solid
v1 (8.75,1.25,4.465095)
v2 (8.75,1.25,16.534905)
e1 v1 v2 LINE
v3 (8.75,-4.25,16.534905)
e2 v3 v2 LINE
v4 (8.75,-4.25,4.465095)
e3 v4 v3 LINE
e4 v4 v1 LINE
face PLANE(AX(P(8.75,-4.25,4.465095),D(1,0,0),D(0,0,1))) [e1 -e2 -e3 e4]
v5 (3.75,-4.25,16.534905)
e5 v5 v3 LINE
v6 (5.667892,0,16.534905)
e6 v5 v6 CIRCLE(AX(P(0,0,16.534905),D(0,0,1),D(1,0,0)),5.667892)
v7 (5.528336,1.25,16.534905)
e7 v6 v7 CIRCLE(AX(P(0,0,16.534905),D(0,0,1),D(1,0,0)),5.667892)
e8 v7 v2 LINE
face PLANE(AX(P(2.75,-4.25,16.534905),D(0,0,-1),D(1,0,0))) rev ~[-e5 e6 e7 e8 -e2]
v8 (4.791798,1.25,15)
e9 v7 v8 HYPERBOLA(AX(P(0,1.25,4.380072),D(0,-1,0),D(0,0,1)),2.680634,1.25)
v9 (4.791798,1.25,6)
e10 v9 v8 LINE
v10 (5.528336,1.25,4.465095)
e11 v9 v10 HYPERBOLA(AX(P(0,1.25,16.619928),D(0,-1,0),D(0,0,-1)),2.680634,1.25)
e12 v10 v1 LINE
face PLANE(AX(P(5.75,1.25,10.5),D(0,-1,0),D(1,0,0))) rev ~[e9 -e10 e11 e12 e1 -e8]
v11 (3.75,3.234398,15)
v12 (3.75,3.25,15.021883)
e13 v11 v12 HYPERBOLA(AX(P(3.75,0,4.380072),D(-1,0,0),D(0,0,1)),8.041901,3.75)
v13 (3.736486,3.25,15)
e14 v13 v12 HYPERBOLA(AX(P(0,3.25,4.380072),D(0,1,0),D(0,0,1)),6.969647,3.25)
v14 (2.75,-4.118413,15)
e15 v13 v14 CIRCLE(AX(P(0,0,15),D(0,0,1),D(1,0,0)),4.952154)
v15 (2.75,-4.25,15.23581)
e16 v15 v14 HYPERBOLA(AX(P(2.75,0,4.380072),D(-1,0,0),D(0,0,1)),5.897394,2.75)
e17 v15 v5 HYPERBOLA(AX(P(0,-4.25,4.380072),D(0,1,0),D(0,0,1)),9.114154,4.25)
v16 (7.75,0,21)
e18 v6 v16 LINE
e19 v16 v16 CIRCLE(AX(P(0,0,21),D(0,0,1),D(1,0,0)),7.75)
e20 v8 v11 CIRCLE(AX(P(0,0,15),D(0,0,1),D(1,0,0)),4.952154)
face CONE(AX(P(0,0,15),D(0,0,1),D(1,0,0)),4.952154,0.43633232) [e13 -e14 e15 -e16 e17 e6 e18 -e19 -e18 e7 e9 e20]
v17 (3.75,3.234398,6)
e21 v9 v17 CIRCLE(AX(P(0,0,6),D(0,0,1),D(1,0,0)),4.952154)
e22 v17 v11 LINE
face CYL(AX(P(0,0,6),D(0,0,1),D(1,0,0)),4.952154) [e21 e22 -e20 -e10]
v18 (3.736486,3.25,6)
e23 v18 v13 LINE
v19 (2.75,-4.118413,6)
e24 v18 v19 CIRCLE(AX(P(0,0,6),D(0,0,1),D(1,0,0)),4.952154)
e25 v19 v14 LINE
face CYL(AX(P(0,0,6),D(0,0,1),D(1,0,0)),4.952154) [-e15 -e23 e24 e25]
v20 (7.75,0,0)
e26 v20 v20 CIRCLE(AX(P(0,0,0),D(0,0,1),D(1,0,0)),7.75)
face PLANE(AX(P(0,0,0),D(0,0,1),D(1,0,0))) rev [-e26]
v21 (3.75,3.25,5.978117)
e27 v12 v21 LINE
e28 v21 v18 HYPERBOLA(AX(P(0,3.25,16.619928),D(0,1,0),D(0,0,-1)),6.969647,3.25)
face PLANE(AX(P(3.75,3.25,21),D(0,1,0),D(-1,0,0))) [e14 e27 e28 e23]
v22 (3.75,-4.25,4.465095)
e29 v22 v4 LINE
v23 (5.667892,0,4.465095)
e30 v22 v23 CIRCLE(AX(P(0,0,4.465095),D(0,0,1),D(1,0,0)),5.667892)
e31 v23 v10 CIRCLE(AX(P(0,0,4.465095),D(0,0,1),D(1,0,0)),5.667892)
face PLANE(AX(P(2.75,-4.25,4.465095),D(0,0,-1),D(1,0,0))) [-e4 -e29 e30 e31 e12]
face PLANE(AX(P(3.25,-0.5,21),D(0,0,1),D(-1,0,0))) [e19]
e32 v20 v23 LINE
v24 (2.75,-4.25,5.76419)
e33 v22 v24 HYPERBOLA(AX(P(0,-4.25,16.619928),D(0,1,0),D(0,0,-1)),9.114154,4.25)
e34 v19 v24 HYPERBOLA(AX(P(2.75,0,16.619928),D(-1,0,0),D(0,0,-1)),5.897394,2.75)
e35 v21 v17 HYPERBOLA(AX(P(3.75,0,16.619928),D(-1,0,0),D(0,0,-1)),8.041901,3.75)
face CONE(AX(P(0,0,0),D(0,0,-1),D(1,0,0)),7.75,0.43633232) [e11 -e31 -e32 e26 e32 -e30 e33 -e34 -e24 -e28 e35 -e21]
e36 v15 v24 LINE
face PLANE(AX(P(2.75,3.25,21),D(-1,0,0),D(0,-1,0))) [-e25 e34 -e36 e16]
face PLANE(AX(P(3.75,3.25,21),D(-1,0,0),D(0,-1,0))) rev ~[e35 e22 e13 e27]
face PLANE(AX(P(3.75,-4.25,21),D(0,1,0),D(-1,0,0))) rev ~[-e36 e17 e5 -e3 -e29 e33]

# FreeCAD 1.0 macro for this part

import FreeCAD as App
import Part
import Sketcher
from FreeCAD import Vector
Q = App.Units.Quantity

doc = App.newDocument("Part")
body = doc.addObject("PartDesign::Body", "Body")

# Sketch on XZ plane
sketch1 = body.newObject("Sketcher::SketchObject", "Sketch")
sketch1.AttachmentSupport = (doc.getObject("XZ_Plane"), [""])
sketch1.MapMode = "FlatFace"
sketch1.addGeometry([
    Part.LineSegment(Vector(0, 0, 0), Vector(7.75, 0, 0)),  # 0
    Part.LineSegment(Vector(7.75, 0, 0), Vector(4.952154, 6, 0)),  # 1
    Part.LineSegment(Vector(4.952154, 6, 0), Vector(4.952154, 15, 0)),  # 2
    Part.LineSegment(Vector(4.952154, 15, 0), Vector(7.75, 21, 0)),  # 3
    Part.LineSegment(Vector(7.75, 21, 0), Vector(0, 21, 0)),  # 4
    Part.LineSegment(Vector(0, 21, 0), Vector(0, 0, 0)),  # 5
], False)
sketch1.addConstraint([
    Sketcher.Constraint("Coincident", 0, 2, 1, 1),
    Sketcher.Constraint("Coincident", 1, 2, 2, 1),
    Sketcher.Constraint("Coincident", 2, 2, 3, 1),
    Sketcher.Constraint("Coincident", 3, 2, 4, 1),
    Sketcher.Constraint("Coincident", 4, 2, 5, 1),
    Sketcher.Constraint("Coincident", 5, 2, 0, 1),
    Sketcher.Constraint("Horizontal", 0),
    Sketcher.Constraint("Vertical", 2),
    Sketcher.Constraint("Horizontal", 4),
    Sketcher.Constraint("Vertical", 5),
    Sketcher.Constraint("Coincident", 5, 2, -1, 1),
    Sketcher.Constraint("Vertical", 0, 2, 3, 2),
    Sketcher.Constraint("Equal", 1, 3),
    Sketcher.Constraint("DistanceY", 2, 1, 2, 2, 9.0),
    Sketcher.Constraint("DistanceY", 5, 2, 5, 1, 21.0),
    Sketcher.Constraint("Angle", 1, Q("115 deg")),
    Sketcher.Constraint("DistanceX", 0, 1, 0, 2, 7.75),
])
revolution = body.newObject("PartDesign::Revolution", "Revolution")
revolution.Profile = sketch1
revolution.ReferenceAxis = (sketch1, ["V_Axis"])
revolution.Angle = 360

# Sketch on XY plane
sketch2 = body.newObject("Sketcher::SketchObject", "Sketch001")
sketch2.AttachmentSupport = (doc.getObject("XY_Plane"), [""])
sketch2.MapMode = "FlatFace"
sketch2.AttachmentOffset = App.Placement(Vector(0, 0, 21), App.Rotation())
sketch2.addGeometry([
    Part.LineSegment(Vector(3.75, -4.25, 0), Vector(3.75, 3.25, 0)),
    Part.LineSegment(Vector(3.75, 3.25, 0), Vector(2.75, 3.25, 0)),
    Part.LineSegment(Vector(2.75, 3.25, 0), Vector(2.75, -4.25, 0)),
    Part.LineSegment(Vector(2.75, -4.25, 0), Vector(3.75, -4.25, 0)),
], False)
sketch2.addConstraint([
    Sketcher.Constraint("Coincident", 0, 2, 1, 1),
    Sketcher.Constraint("Coincident", 1, 2, 2, 1),
    Sketcher.Constraint("Coincident", 2, 2, 3, 1),
    Sketcher.Constraint("Coincident", 3, 2, 0, 1),
    Sketcher.Constraint("Vertical", 0),
    Sketcher.Constraint("Horizontal", 1),
    Sketcher.Constraint("Vertical", 2),
    Sketcher.Constraint("Horizontal", 3),
    Sketcher.Constraint("DistanceX", 1, 2, 1, 1, 1.0),
    Sketcher.Constraint("DistanceY", 0, 1, 0, 2, 7.5),
    Sketcher.Constraint("DistanceX", -1, 1, 0, 2, 3.75),
    Sketcher.Constraint("DistanceY", -1, 1, 0, 2, 3.25),
])
pad1 = body.newObject("PartDesign::Pad", "Pad")
pad1.Profile = sketch2
pad1.Length = 20
pad1.Reversed = True

# Sketch on XZ plane
sketch3 = body.newObject("Sketcher::SketchObject", "Sketch002")
sketch3.AttachmentSupport = (doc.getObject("XZ_Plane"), [""])
sketch3.MapMode = "FlatFace"
sketch3.AttachmentOffset = App.Placement(Vector(0, 0, 4.25), App.Rotation())
sketch3.addGeometry([
    Part.LineSegment(Vector(2.75, 16.534905, 0), Vector(2.75, 4.465095, 0)),
    Part.LineSegment(Vector(2.75, 4.465095, 0), Vector(8.75, 4.465095, 0)),
    Part.LineSegment(Vector(8.75, 4.465095, 0), Vector(8.75, 16.534905, 0)),
    Part.LineSegment(Vector(8.75, 16.534905, 0), Vector(2.75, 16.534905, 0)),
], False)
sketch3.addConstraint([
    Sketcher.Constraint("Coincident", 0, 2, 1, 1),
    Sketcher.Constraint("Coincident", 1, 2, 2, 1),
    Sketcher.Constraint("Coincident", 2, 2, 3, 1),
    Sketcher.Constraint("Coincident", 3, 2, 0, 1),
    Sketcher.Constraint("Vertical", 0),
    Sketcher.Constraint("Horizontal", 1),
    Sketcher.Constraint("Vertical", 2),
    Sketcher.Constraint("Horizontal", 3),
    Sketcher.Constraint("DistanceX", 1, 1, 1, 2, 6.0),
    Sketcher.Constraint("DistanceX", -1, 1, 0, 2, 2.75),
    Sketcher.Constraint("DistanceY", 0, 2, 0, 1, 12.06981),
    Sketcher.Constraint("DistanceY", -1, 1, 0, 2, 4.465095),
])
pad2 = body.newObject("PartDesign::Pad", "Pad001")
pad2.Profile = sketch3
pad2.Length = 5.5
pad2.Reversed = True

doc.recompute()
